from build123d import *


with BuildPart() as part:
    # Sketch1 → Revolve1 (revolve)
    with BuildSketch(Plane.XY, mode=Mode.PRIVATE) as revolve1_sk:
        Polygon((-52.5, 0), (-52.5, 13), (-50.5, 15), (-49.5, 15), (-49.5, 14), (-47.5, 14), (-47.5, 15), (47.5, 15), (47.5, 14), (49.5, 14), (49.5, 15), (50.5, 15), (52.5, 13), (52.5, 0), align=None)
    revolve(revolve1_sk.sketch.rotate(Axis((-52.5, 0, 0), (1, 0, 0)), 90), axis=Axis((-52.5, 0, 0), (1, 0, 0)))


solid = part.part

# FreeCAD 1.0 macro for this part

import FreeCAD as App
import Part
import Sketcher
Q = App.Units.Quantity

doc = App.newDocument("Part")
params = doc.addObject("Spreadsheet::Sheet", "Params")
for row, (alias, value) in enumerate([
    ("sketch1_width", "105 mm"),
    ("sketch1_width2", "1 mm"),
    ("sketch1_width3", "2 mm"),
    ("sketch1_width4", "95 mm"),
    ("sketch1_height", "13 mm"),
    ("revolution_angle", "360 deg"),
], start=1):
    params.set(f"A{row}", alias)
    params.set(f"B{row}", "=" + value)
    params.setAlias(f"B{row}", alias)

body = doc.addObject("PartDesign::Body", "Body")

# Sketch on XY plane
sketch1 = doc.addObject("Sketcher::SketchObject", "Sketch")
body.addObject(sketch1)
sketch1.AttachmentSupport = (doc.XY_Plane, [""])
sketch1.MapMode = "FlatFace"
sketch1.addGeometry([
    Part.LineSegment(App.Vector(-52.5, 13, 0), App.Vector(-52.5, 0, 0)),  # 0
    Part.LineSegment(App.Vector(-52.5, 0, 0), App.Vector(52.5, 0, 0)),  # 1
    Part.LineSegment(App.Vector(52.5, 0, 0), App.Vector(52.5, 13, 0)),  # 2
    Part.LineSegment(App.Vector(52.5, 13, 0), App.Vector(50.5, 15, 0)),  # 3
    Part.LineSegment(App.Vector(50.5, 15, 0), App.Vector(49.5, 15, 0)),  # 4
    Part.LineSegment(App.Vector(49.5, 15, 0), App.Vector(49.5, 14, 0)),  # 5
    Part.LineSegment(App.Vector(49.5, 14, 0), App.Vector(47.5, 14, 0)),  # 6
    Part.LineSegment(App.Vector(47.5, 14, 0), App.Vector(47.5, 15, 0)),  # 7
    Part.LineSegment(App.Vector(47.5, 15, 0), App.Vector(-47.5, 15, 0)),  # 8
    Part.LineSegment(App.Vector(-47.5, 15, 0), App.Vector(-47.5, 14, 0)),  # 9
    Part.LineSegment(App.Vector(-47.5, 14, 0), App.Vector(-49.5, 14, 0)),  # 10
    Part.LineSegment(App.Vector(-49.5, 14, 0), App.Vector(-49.5, 15, 0)),  # 11
    Part.LineSegment(App.Vector(-49.5, 15, 0), App.Vector(-50.5, 15, 0)),  # 12
    Part.LineSegment(App.Vector(-50.5, 15, 0), App.Vector(-52.5, 13, 0)),  # 13
], False)
sketch1.addConstraint([
    Sketcher.Constraint("Coincident", 0, 2, 1, 1),
    Sketcher.Constraint("Coincident", 1, 2, 2, 1),
    Sketcher.Constraint("Coincident", 2, 2, 3, 1),
    Sketcher.Constraint("Coincident", 3, 2, 4, 1),
    Sketcher.Constraint("Coincident", 4, 2, 5, 1),
    Sketcher.Constraint("Coincident", 5, 2, 6, 1),
    Sketcher.Constraint("Coincident", 6, 2, 7, 1),
    Sketcher.Constraint("Coincident", 7, 2, 8, 1),
    Sketcher.Constraint("Coincident", 8, 2, 9, 1),
    Sketcher.Constraint("Coincident", 9, 2, 10, 1),
    Sketcher.Constraint("Coincident", 10, 2, 11, 1),
    Sketcher.Constraint("Coincident", 11, 2, 12, 1),
    Sketcher.Constraint("Coincident", 12, 2, 13, 1),
    Sketcher.Constraint("Coincident", 13, 2, 0, 1),
    Sketcher.Constraint("Vertical", 0),
    Sketcher.Constraint("Horizontal", 1),
    Sketcher.Constraint("Vertical", 2),
    Sketcher.Constraint("Horizontal", 4),
    Sketcher.Constraint("Vertical", 5),
    Sketcher.Constraint("Horizontal", 6),
    Sketcher.Constraint("Vertical", 7),
    Sketcher.Constraint("Horizontal", 8),
    Sketcher.Constraint("Vertical", 9),
    Sketcher.Constraint("Horizontal", 10),
    Sketcher.Constraint("Vertical", 11),
    Sketcher.Constraint("Horizontal", 12),
    Sketcher.Constraint("Symmetric", 0, 2, 1, 2, -1, 1),
    Sketcher.Constraint("Symmetric", 6, 2, 9, 2, -2),
    Sketcher.Constraint("Symmetric", 4, 2, 11, 2, -2),
    Sketcher.Constraint("Perpendicular", 3, 13),
    Sketcher.Constraint("Horizontal", 4, 2, 7, 2),
    Sketcher.Constraint("Horizontal", 2, 2, 13, 2),
    Sketcher.Constraint("Equal", 4, 12),
    Sketcher.Constraint("Equal", 12, 5),
    Sketcher.Constraint("DistanceX", 1, 1, 1, 2, Q("105 mm")),
    Sketcher.Constraint("DistanceX", 4, 2, 4, 1, Q("1 mm")),
    Sketcher.Constraint("DistanceX", 6, 2, 6, 1, Q("2 mm")),
    Sketcher.Constraint("DistanceX", 8, 2, 8, 1, Q("95 mm")),
    Sketcher.Constraint("DistanceY", 0, 2, 0, 1, Q("13 mm")),
])
sketch1.setExpression("Constraints[34]", "Params.sketch1_width")
sketch1.setExpression("Constraints[35]", "Params.sketch1_width2")
sketch1.setExpression("Constraints[36]", "Params.sketch1_width3")
sketch1.setExpression("Constraints[37]", "Params.sketch1_width4")
sketch1.setExpression("Constraints[38]", "Params.sketch1_height")
revolution = doc.addObject("PartDesign::Revolution", "Revolution")
body.addObject(revolution)
revolution.Profile = sketch1
revolution.ReferenceAxis = (sketch1, ["H_Axis"])
revolution.setExpression("Angle", "Params.revolution_angle")

doc.recompute()
